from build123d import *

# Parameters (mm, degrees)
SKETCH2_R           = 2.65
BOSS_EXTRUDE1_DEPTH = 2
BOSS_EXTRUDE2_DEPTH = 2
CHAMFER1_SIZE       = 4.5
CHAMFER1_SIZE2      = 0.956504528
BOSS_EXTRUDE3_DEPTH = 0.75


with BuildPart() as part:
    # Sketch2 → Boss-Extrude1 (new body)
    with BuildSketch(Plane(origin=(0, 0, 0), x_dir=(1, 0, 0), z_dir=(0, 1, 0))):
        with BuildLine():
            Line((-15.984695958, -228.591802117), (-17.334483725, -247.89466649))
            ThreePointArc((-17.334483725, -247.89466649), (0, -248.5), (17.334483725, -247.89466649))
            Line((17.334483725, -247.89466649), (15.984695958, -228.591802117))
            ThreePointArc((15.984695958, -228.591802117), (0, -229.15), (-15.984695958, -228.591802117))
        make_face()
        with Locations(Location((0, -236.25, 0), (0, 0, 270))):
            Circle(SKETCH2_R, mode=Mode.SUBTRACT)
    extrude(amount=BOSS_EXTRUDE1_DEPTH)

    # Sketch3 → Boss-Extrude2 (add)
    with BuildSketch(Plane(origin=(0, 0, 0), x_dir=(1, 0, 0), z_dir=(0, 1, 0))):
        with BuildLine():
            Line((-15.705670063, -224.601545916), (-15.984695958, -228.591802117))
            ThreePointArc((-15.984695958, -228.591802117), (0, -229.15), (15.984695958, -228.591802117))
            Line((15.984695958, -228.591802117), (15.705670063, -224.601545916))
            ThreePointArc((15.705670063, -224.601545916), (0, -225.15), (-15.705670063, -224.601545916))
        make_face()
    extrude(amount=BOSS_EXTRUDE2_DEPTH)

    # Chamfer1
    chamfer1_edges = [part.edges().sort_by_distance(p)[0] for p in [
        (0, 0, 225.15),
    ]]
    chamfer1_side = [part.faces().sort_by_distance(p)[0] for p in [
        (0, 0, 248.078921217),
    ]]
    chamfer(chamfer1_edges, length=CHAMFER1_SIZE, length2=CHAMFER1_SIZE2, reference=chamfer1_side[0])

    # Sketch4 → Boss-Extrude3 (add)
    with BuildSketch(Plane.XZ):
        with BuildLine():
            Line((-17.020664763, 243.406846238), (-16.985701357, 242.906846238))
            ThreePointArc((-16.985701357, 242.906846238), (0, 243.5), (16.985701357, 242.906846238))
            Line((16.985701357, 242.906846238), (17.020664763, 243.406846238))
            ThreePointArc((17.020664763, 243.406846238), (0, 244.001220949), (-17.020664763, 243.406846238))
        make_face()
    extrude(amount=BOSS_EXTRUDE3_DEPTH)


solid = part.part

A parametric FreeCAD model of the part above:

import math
import FreeCAD as App
import Part
import Sketcher
Q = App.Units.Quantity


def edges_at(feature, points):
    """Names of the edges that pass closest to the given points."""
    edges = feature.Shape.Edges
    near = lambda p: min(range(len(edges)), key=lambda i: edges[i].distToShape(Part.Vertex(*p))[0])
    return sorted({f"Edge{near(p) + 1}" for p in points})

doc = App.newDocument("Part")
body = doc.addObject("PartDesign::Body", "Body")

sketch1 = doc.addObject("Sketcher::SketchObject", "Sketch")
body.addObject(sketch1)
sketch1.AttachmentSupport = (doc.XZ_Plane, [""])
sketch1.MapMode = "FlatFace"
sketch1.addGeometry(Part.LineSegment(App.Vector(-16, 228.6, 0), App.Vector(-17.3, 247.9, 0)), False)
sketch1.addGeometry(Part.ArcOfCircle(Part.Circle(App.Vector(0, 0, 0), App.Vector(0, 0, 1), 248.5), math.radians(86), math.radians(94)), False)
sketch1.addGeometry(Part.LineSegment(App.Vector(17.3, 247.9, 0), App.Vector(16, 228.6, 0)), False)
sketch1.addGeometry(Part.ArcOfCircle(Part.Circle(App.Vector(0, 0, 0), App.Vector(0, 0, 1), 229.1), math.radians(86), math.radians(94)), False)
sketch1.addGeometry(Part.Circle(App.Vector(0, 236.2, 0), App.Vector(0, 0, 1), 2.6), False)
sketch1.addConstraint(Sketcher.Constraint("Coincident", 0, 2, 1, 2))
sketch1.addConstraint(Sketcher.Constraint("Coincident", 1, 1, 2, 1))
sketch1.addConstraint(Sketcher.Constraint("Coincident", 2, 2, 3, 1))
sketch1.addConstraint(Sketcher.Constraint("Coincident", 3, 2, 0, 1))
sketch1.addConstraint(Sketcher.Constraint("Coincident", 1, 3, -1, 1))
sketch1.addConstraint(Sketcher.Constraint("Coincident", 3, 3, -1, 1))
sketch1.addConstraint(Sketcher.Constraint("PointOnObject", 4, 3, -2))
sketch1.addConstraint(Sketcher.Constraint("Horizontal", 0, 2, 1, 1))
sketch1.addConstraint(Sketcher.Constraint("Horizontal", 2, 2, 3, 2))
sketch1.addConstraint(Sketcher.Constraint("Diameter", 4, Q("5.3 mm")))
sketch1.addConstraint(Sketcher.Constraint("Radius", 1, Q("248.5 mm")))
sketch1.addConstraint(Sketcher.Constraint("Angle", 0, Q("94 deg")))
sketch1.addConstraint(Sketcher.Constraint("Radius", 3, Q("229.15 mm")))
sketch1.addConstraint(Sketcher.Constraint("DistanceY", -1, 1, 4, 3, Q("236.25 mm")))
sketch1.addConstraint(Sketcher.Constraint("DistanceX", 0, 2, 2, 2, Q("33.31918 mm")))
pad1 = doc.addObject("PartDesign::Pad", "Pad")
body.addObject(pad1)
pad1.Profile = sketch1
pad1.Length = 2
pad1.Reversed = True

sketch2 = doc.addObject("Sketcher::SketchObject", "Sketch001")
body.addObject(sketch2)
sketch2.AttachmentSupport = (doc.XZ_Plane, [""])
sketch2.MapMode = "FlatFace"
sketch2.addGeometry(Part.LineSegment(App.Vector(-15.7, 224.6, 0), App.Vector(-16, 228.6, 0)), False)
sketch2.addGeometry(Part.ArcOfCircle(Part.Circle(App.Vector(0, 0, 0), App.Vector(0, 0, 1), 229.1), math.radians(86), math.radians(94)), False)
sketch2.addGeometry(Part.LineSegment(App.Vector(16, 228.6, 0), App.Vector(15.7, 224.6, 0)), False)
sketch2.addGeometry(Part.ArcOfCircle(Part.Circle(App.Vector(0, 0, 0), App.Vector(0, 0, 1), 225.1), math.radians(86), math.radians(94)), False)
sketch2.addConstraint(Sketcher.Constraint("Coincident", 0, 2, 1, 2))
sketch2.addConstraint(Sketcher.Constraint("Coincident", 1, 1, 2, 1))
sketch2.addConstraint(Sketcher.Constraint("Coincident", 2, 2, 3, 1))
sketch2.addConstraint(Sketcher.Constraint("Coincident", 3, 2, 0, 1))
sketch2.addConstraint(Sketcher.Constraint("Coincident", 1, 3, -1, 1))
sketch2.addConstraint(Sketcher.Constraint("Coincident", 3, 3, -1, 1))
sketch2.addConstraint(Sketcher.Constraint("Horizontal", 0, 2, 1, 1))
sketch2.addConstraint(Sketcher.Constraint("Horizontal", 2, 2, 3, 2))
sketch2.addConstraint(Sketcher.Constraint("Angle", 0, Q("94 deg")))
sketch2.addConstraint(Sketcher.Constraint("Radius", 1, Q("229.15 mm")))
sketch2.addConstraint(Sketcher.Constraint("Radius", 3, Q("225.15 mm")))
sketch2.addConstraint(Sketcher.Constraint("DistanceX", -1, 1, 2, 2, Q("15.70567 mm")))
pad2 = doc.addObject("PartDesign::Pad", "Pad001")
body.addObject(pad2)
pad2.Profile = sketch2
pad2.Length = 2
pad2.Reversed = True
doc.recompute()

chamfer = doc.addObject("PartDesign::Chamfer", "Chamfer")
body.addObject(chamfer)
chamfer.Base = (pad2, edges_at(pad2, [(0, 0, 225.15)]))
chamfer.ChamferType = "Two distances"
chamfer.Size = 4.5
chamfer.Size2 = 0.956505
chamfer.FlipDirection = True

sketch3 = doc.addObject("Sketcher::SketchObject", "Sketch002")
body.addObject(sketch3)
sketch3.AttachmentSupport = (doc.XZ_Plane, [""])
sketch3.MapMode = "FlatFace"
sketch3.addGeometry(Part.LineSegment(App.Vector(-17, 243.4, 0), App.Vector(-17, 242.9, 0)), False)
sketch3.addGeometry(Part.ArcOfCircle(Part.Circle(App.Vector(0, 0, 0), App.Vector(0, 0, 1), 243.5), math.radians(86), math.radians(94)), False)
sketch3.addGeometry(Part.LineSegment(App.Vector(17, 242.9, 0), App.Vector(17, 243.4, 0)), False)
sketch3.addGeometry(Part.ArcOfCircle(Part.Circle(App.Vector(0, 0, 0), App.Vector(0, 0, 1), 244), math.radians(86), math.radians(94)), False)
sketch3.addConstraint(Sketcher.Constraint("Coincident", 0, 2, 1, 2))
sketch3.addConstraint(Sketcher.Constraint("Coincident", 1, 1, 2, 1))
sketch3.addConstraint(Sketcher.Constraint("Coincident", 2, 2, 3, 1))
sketch3.addConstraint(Sketcher.Constraint("Coincident", 3, 2, 0, 1))
sketch3.addConstraint(Sketcher.Constraint("Coincident", 1, 3, -1, 1))
sketch3.addConstraint(Sketcher.Constraint("Coincident", 3, 3, -1, 1))
sketch3.addConstraint(Sketcher.Constraint("Horizontal", 0, 2, 1, 1))
sketch3.addConstraint(Sketcher.Constraint("Horizontal", 2, 2, 3, 2))
sketch3.addConstraint(Sketcher.Constraint("Radius", 1, Q("243.5 mm")))
sketch3.addConstraint(Sketcher.Constraint("Angle", 0, Q("-86 deg")))
sketch3.addConstraint(Sketcher.Constraint("DistanceY", 1, 1, 2, 2, Q("0.5 mm")))
sketch3.addConstraint(Sketcher.Constraint("DistanceX", 0, 2, -1, 1, Q("16.985701 mm")))
pad3 = doc.addObject("PartDesign::Pad", "Pad002")
body.addObject(pad3)
pad3.Profile = sketch3
pad3.Length = 0.75

doc.recompute()
